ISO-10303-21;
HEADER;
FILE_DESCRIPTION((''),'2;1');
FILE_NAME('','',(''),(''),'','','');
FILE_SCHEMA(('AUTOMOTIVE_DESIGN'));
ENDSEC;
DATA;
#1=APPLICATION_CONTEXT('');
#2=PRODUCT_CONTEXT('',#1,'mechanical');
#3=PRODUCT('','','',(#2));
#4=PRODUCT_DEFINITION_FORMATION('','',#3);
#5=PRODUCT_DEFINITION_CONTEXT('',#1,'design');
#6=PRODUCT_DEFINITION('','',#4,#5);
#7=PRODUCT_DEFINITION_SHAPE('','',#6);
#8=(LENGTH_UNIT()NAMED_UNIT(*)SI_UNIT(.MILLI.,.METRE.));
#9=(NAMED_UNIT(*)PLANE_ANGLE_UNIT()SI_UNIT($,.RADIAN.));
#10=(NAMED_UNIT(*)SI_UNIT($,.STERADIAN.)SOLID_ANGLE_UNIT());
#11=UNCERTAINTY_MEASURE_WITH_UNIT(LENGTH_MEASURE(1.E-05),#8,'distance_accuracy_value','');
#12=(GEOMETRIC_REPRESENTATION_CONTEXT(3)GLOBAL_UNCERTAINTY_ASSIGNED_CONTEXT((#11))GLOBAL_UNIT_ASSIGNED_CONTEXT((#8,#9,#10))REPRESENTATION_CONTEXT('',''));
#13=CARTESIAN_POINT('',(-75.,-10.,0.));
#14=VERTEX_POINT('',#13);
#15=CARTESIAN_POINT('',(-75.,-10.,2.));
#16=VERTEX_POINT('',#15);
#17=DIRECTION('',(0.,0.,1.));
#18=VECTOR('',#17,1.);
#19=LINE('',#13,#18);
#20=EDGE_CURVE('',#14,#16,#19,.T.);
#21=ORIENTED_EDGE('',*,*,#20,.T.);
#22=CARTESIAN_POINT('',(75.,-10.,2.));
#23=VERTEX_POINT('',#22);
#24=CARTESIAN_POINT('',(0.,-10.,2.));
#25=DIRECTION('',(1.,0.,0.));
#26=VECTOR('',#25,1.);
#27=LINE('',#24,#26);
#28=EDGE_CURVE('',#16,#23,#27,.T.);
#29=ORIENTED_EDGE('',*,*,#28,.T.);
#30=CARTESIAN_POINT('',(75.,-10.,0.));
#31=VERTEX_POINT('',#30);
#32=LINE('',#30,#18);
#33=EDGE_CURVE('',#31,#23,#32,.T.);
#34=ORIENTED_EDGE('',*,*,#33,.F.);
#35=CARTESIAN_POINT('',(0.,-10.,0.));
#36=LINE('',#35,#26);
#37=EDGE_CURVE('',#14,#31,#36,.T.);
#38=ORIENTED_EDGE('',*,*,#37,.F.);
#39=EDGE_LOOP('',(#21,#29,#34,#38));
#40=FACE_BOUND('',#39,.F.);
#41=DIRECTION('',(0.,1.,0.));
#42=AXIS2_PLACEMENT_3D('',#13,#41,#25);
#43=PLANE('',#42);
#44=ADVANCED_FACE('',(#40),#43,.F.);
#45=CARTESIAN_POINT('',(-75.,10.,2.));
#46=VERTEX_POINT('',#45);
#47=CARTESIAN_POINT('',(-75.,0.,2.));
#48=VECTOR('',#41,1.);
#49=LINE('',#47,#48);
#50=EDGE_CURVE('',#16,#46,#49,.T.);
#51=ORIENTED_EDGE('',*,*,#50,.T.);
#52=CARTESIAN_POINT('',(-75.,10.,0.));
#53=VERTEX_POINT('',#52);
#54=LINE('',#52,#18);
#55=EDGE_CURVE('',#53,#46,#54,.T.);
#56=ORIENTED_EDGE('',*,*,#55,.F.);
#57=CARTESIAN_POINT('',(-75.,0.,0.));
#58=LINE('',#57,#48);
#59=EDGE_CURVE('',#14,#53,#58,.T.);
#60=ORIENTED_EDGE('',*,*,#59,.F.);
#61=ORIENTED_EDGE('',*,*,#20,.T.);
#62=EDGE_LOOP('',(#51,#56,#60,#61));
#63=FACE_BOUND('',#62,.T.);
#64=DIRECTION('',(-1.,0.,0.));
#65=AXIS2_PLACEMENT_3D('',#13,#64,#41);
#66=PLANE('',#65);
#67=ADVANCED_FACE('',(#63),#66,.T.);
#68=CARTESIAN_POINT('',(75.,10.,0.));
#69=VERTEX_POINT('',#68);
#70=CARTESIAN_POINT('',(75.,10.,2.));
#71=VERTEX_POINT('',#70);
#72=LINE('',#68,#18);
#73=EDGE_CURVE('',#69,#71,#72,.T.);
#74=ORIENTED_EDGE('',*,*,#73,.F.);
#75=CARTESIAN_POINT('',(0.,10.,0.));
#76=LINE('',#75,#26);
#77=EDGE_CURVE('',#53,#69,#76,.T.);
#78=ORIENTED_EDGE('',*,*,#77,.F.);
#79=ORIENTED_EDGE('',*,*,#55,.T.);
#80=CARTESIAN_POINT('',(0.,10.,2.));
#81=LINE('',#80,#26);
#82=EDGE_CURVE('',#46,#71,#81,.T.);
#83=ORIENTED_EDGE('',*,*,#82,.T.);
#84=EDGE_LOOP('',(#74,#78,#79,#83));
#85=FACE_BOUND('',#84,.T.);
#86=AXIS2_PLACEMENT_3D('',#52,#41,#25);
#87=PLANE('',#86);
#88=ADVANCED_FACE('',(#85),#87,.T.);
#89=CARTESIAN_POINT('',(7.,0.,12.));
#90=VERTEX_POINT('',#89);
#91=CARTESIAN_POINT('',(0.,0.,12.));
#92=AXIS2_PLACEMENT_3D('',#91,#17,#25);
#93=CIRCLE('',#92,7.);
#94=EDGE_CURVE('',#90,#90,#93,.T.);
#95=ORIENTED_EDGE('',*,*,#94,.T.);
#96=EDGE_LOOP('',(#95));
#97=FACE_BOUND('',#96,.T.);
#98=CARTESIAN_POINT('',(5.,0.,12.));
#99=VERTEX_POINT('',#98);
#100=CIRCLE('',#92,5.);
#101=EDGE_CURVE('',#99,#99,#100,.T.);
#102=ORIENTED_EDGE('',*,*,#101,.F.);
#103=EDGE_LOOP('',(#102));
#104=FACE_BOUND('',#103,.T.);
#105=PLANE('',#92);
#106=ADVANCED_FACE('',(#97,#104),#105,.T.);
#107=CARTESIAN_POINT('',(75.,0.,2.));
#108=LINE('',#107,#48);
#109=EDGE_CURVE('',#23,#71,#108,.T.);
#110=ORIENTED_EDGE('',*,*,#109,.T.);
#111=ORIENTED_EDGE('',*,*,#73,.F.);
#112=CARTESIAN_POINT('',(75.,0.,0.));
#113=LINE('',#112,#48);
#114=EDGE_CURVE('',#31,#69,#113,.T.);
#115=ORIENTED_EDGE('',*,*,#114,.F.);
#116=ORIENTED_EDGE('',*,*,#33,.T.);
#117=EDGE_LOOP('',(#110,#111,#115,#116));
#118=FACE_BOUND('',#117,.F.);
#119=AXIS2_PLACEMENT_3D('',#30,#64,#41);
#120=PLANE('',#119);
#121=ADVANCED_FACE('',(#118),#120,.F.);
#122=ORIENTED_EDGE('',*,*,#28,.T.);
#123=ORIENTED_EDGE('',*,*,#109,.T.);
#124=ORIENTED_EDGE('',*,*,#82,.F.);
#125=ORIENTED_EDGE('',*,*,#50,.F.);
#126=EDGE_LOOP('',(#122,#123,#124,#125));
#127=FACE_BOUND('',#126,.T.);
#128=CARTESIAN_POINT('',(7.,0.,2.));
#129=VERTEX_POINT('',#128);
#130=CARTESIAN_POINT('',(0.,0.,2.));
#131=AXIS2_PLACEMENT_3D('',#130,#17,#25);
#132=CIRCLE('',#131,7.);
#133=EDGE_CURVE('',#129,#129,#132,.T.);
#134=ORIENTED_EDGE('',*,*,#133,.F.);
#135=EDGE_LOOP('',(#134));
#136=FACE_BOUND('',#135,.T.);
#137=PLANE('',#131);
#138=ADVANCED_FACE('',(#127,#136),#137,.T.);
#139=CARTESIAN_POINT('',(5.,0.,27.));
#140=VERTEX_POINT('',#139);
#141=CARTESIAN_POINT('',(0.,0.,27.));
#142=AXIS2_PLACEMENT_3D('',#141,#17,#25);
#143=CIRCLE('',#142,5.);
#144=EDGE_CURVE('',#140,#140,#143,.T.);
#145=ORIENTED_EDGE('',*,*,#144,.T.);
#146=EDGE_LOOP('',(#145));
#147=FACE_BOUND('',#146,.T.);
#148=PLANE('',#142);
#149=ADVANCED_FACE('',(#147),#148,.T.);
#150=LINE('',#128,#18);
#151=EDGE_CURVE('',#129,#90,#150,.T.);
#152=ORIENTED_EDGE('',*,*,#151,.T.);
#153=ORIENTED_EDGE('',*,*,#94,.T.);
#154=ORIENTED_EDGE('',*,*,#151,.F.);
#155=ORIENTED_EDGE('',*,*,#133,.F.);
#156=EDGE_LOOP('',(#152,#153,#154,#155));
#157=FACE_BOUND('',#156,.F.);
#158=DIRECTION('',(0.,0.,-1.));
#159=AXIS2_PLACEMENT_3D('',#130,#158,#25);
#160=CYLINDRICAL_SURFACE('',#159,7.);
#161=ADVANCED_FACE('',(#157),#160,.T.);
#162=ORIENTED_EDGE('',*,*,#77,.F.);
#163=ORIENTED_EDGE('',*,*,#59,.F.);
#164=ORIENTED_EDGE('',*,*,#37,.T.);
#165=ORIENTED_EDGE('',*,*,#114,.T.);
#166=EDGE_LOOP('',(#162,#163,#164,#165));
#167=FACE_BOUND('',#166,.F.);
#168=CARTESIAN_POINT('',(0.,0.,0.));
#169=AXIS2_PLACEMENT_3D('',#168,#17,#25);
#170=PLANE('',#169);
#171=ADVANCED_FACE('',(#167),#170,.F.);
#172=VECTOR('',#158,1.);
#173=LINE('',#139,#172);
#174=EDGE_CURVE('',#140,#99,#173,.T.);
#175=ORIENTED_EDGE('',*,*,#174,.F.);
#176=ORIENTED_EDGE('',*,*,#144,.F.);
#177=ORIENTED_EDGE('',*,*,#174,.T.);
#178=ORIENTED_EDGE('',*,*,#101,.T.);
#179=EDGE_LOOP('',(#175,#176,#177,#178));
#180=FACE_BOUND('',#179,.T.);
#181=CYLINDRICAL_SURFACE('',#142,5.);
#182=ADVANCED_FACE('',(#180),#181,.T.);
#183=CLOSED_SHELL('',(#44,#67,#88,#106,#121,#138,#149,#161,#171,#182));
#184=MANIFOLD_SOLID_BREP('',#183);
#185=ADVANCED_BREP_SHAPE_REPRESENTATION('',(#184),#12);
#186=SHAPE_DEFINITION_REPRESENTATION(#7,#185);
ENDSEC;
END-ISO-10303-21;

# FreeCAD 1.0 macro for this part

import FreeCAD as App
import Part
import Sketcher
Q = App.Units.Quantity


def add_polygon(sketch, points):
    """Adds a closed chain of lines whose ends are joined by coincident constraints."""
    first, n = sketch.GeometryCount, len(points)
    for a, b in zip(points, points[1:] + points[:1]):
        sketch.addGeometry(Part.LineSegment(App.Vector(*a, 0), App.Vector(*b, 0)), False)
    for i in range(n):
        sketch.addConstraint(Sketcher.Constraint("Coincident", first + i, 2, first + (i + 1) % n, 1))

doc = App.newDocument("Part")
body = doc.addObject("PartDesign::Body", "Body")

# Sketch on XY plane
sketch1 = doc.addObject("Sketcher::SketchObject", "Sketch")
body.addObject(sketch1)
sketch1.AttachmentSupport = (doc.XY_Plane, [""])
sketch1.MapMode = "FlatFace"
add_polygon(sketch1, [(-75, 10), (-75, -10), (75, -10), (75, 10)])  # lines 0-3
sketch1.addConstraint([
    Sketcher.Constraint("Vertical", 0),
    Sketcher.Constraint("Horizontal", 1),
    Sketcher.Constraint("Vertical", 2),
    Sketcher.Constraint("Horizontal", 3),
    Sketcher.Constraint("Symmetric", 0, 2, 2, 2, -1, 1),
    Sketcher.Constraint("DistanceX", 1, 1, 1, 2, Q("150 mm")),
    Sketcher.Constraint("DistanceY", 0, 2, 0, 1, Q("20 mm")),
])
pad1 = doc.addObject("PartDesign::Pad", "Pad")
body.addObject(pad1)
pad1.Profile = sketch1
pad1.Length = 2

# Sketch on XY plane
sketch2 = doc.addObject("Sketcher::SketchObject", "Sketch001")
body.addObject(sketch2)
sketch2.AttachmentSupport = (doc.XY_Plane, [""])
sketch2.MapMode = "FlatFace"
sketch2.AttachmentOffset = App.Placement(App.Vector(0, 0, 2), App.Rotation())
sketch2.addGeometry(Part.Circle(App.Vector(0, 0, 0), App.Vector(0, 0, 1), 7), False)
sketch2.addConstraint([
    Sketcher.Constraint("Coincident", 0, 3, -1, 1),
    Sketcher.Constraint("Diameter", 0, Q("14 mm")),
])
pad2 = doc.addObject("PartDesign::Pad", "Pad001")
body.addObject(pad2)
pad2.Profile = sketch2
pad2.Length = 25

# Sketch on XY plane
sketch3 = doc.addObject("Sketcher::SketchObject", "Sketch002")
body.addObject(sketch3)
sketch3.AttachmentSupport = (doc.XY_Plane, [""])
sketch3.MapMode = "FlatFace"
sketch3.AttachmentOffset = App.Placement(App.Vector(0, 0, 27), App.Rotation())
sketch3.addGeometry([
    Part.Circle(App.Vector(0, 0, 0), App.Vector(0, 0, 1), 7),
    Part.Circle(App.Vector(0, 0, 0), App.Vector(0, 0, 1), 5),
], False)
sketch3.addConstraint([
    Sketcher.Constraint("Coincident", 0, 3, -1, 1),
    Sketcher.Constraint("Coincident", 1, 3, -1, 1),
    Sketcher.Constraint("Diameter", 0, Q("14 mm")),
    Sketcher.Constraint("Diameter", 1, Q("10 mm")),
])
pocket1 = doc.addObject("PartDesign::Pocket", "Pocket")
body.addObject(pocket1)
pocket1.Profile = sketch3
pocket1.Length = 15

doc.recompute()
